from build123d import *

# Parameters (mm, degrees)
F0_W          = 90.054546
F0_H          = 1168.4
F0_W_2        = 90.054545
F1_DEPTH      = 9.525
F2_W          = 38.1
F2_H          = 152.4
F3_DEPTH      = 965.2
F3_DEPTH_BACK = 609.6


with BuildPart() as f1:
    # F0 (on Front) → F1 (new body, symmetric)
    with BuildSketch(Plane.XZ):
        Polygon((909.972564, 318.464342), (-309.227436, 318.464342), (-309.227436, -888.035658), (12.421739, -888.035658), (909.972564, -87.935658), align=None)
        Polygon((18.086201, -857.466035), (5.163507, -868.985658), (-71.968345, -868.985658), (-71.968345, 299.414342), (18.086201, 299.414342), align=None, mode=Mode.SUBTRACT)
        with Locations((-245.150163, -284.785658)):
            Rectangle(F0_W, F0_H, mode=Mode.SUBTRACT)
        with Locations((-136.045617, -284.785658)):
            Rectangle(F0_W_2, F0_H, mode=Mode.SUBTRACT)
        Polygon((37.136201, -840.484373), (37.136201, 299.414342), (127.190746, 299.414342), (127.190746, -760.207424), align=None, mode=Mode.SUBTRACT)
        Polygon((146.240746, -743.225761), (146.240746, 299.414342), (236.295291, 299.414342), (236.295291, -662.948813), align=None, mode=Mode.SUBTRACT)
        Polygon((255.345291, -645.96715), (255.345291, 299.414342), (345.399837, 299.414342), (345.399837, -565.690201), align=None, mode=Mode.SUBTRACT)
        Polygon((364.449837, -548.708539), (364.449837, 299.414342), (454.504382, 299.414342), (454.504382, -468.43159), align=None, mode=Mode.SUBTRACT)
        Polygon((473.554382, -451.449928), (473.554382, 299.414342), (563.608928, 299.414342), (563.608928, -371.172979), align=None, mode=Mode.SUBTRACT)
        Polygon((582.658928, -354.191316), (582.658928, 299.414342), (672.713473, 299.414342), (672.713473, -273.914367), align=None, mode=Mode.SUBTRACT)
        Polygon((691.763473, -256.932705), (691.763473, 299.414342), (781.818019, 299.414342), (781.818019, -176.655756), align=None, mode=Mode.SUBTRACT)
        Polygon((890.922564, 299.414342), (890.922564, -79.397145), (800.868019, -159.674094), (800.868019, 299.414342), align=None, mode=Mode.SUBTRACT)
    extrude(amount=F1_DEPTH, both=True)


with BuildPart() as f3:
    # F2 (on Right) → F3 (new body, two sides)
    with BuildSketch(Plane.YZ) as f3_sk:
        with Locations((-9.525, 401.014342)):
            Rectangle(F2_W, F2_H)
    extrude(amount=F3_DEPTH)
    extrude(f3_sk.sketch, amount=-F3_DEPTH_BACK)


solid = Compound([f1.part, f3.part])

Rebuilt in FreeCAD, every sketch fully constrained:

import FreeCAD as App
import Part
import Sketcher
from FreeCAD import Vector
Q = App.Units.Quantity

doc = App.newDocument("Part")
body = doc.addObject("PartDesign::Body", "Body")

sketch1 = body.newObject("Sketcher::SketchObject", "Sketch")
sketch1.AttachmentSupport = (doc.getObject("XZ_Plane"), [""])
sketch1.MapMode = "FlatFace"
sketch1.addGeometry(Part.LineSegment(Vector(910, 318, 0), Vector(-309, 318, 0)), False)
sketch1.addGeometry(Part.LineSegment(Vector(-309, 318, 0), Vector(-309, -888, 0)), False)
sketch1.addGeometry(Part.LineSegment(Vector(-309, -888, 0), Vector(12, -888, 0)), False)
sketch1.addGeometry(Part.LineSegment(Vector(12, -888, 0), Vector(910, -88, 0)), False)
sketch1.addGeometry(Part.LineSegment(Vector(910, -88, 0), Vector(910, 318, 0)), False)
sketch1.addGeometry(Part.LineSegment(Vector(-200, -869, 0), Vector(-290, -869, 0)), False)
sketch1.addGeometry(Part.LineSegment(Vector(-290, -869, 0), Vector(-290, 299, 0)), False)
sketch1.addGeometry(Part.LineSegment(Vector(-290, 299, 0), Vector(-200, 299, 0)), False)
sketch1.addGeometry(Part.LineSegment(Vector(-200, 299, 0), Vector(-200, -869, 0)), False)
sketch1.addGeometry(Part.LineSegment(Vector(-91, -869, 0), Vector(-181, -869, 0)), False)
sketch1.addGeometry(Part.LineSegment(Vector(-181, -869, 0), Vector(-181, 299, 0)), False)
sketch1.addGeometry(Part.LineSegment(Vector(-181, 299, 0), Vector(-91, 299, 0)), False)
sketch1.addGeometry(Part.LineSegment(Vector(-91, 299, 0), Vector(-91, -869, 0)), False)
sketch1.addGeometry(Part.LineSegment(Vector(18, 299, 0), Vector(18, -857, 0)), False)
sketch1.addGeometry(Part.LineSegment(Vector(18, -857, 0), Vector(5, -869, 0)), False)
sketch1.addGeometry(Part.LineSegment(Vector(5, -869, 0), Vector(-72, -869, 0)), False)
sketch1.addGeometry(Part.LineSegment(Vector(-72, -869, 0), Vector(-72, 299, 0)), False)
sketch1.addGeometry(Part.LineSegment(Vector(-72, 299, 0), Vector(18, 299, 0)), False)
sketch1.addGeometry(Part.LineSegment(Vector(127, -760, 0), Vector(37, -840, 0)), False)
sketch1.addGeometry(Part.LineSegment(Vector(37, -840, 0), Vector(37, 299, 0)), False)
sketch1.addGeometry(Part.LineSegment(Vector(37, 299, 0), Vector(127, 299, 0)), False)
sketch1.addGeometry(Part.LineSegment(Vector(127, 299, 0), Vector(127, -760, 0)), False)
sketch1.addGeometry(Part.LineSegment(Vector(236, -663, 0), Vector(146, -743, 0)), False)
sketch1.addGeometry(Part.LineSegment(Vector(146, -743, 0), Vector(146, 299, 0)), False)
sketch1.addGeometry(Part.LineSegment(Vector(146, 299, 0), Vector(236, 299, 0)), False)
sketch1.addGeometry(Part.LineSegment(Vector(236, 299, 0), Vector(236, -663, 0)), False)
sketch1.addGeometry(Part.LineSegment(Vector(345, -566, 0), Vector(255, -646, 0)), False)
sketch1.addGeometry(Part.LineSegment(Vector(255, -646, 0), Vector(255, 299, 0)), False)
sketch1.addGeometry(Part.LineSegment(Vector(255, 299, 0), Vector(345, 299, 0)), False)
sketch1.addGeometry(Part.LineSegment(Vector(345, 299, 0), Vector(345, -566, 0)), False)
sketch1.addGeometry(Part.LineSegment(Vector(455, -468, 0), Vector(364, -549, 0)), False)
sketch1.addGeometry(Part.LineSegment(Vector(364, -549, 0), Vector(364, 299, 0)), False)
sketch1.addGeometry(Part.LineSegment(Vector(364, 299, 0), Vector(455, 299, 0)), False)
sketch1.addGeometry(Part.LineSegment(Vector(455, 299, 0), Vector(455, -468, 0)), False)
sketch1.addGeometry(Part.LineSegment(Vector(564, -371, 0), Vector(474, -451, 0)), False)
sketch1.addGeometry(Part.LineSegment(Vector(474, -451, 0), Vector(474, 299, 0)), False)
sketch1.addGeometry(Part.LineSegment(Vector(474, 299, 0), Vector(564, 299, 0)), False)
sketch1.addGeometry(Part.LineSegment(Vector(564, 299, 0), Vector(564, -371, 0)), False)
sketch1.addGeometry(Part.LineSegment(Vector(673, -274, 0), Vector(583, -354, 0)), False)
sketch1.addGeometry(Part.LineSegment(Vector(583, -354, 0), Vector(583, 299, 0)), False)
sketch1.addGeometry(Part.LineSegment(Vector(583, 299, 0), Vector(673, 299, 0)), False)
sketch1.addGeometry(Part.LineSegment(Vector(673, 299, 0), Vector(673, -274, 0)), False)
sketch1.addGeometry(Part.LineSegment(Vector(782, -177, 0), Vector(692, -257, 0)), False)
sketch1.addGeometry(Part.LineSegment(Vector(692, -257, 0), Vector(692, 299, 0)), False)
sketch1.addGeometry(Part.LineSegment(Vector(692, 299, 0), Vector(782, 299, 0)), False)
sketch1.addGeometry(Part.LineSegment(Vector(782, 299, 0), Vector(782, -177, 0)), False)
sketch1.addGeometry(Part.LineSegment(Vector(801, 299, 0), Vector(891, 299, 0)), False)
sketch1.addGeometry(Part.LineSegment(Vector(891, 299, 0), Vector(891, -79, 0)), False)
sketch1.addGeometry(Part.LineSegment(Vector(891, -79, 0), Vector(801, -160, 0)), False)
sketch1.addGeometry(Part.LineSegment(Vector(801, -160, 0), Vector(801, 299, 0)), False)
sketch1.addConstraint(Sketcher.Constraint("Coincident", 0, 2, 1, 1))
sketch1.addConstraint(Sketcher.Constraint("Coincident", 1, 2, 2, 1))
sketch1.addConstraint(Sketcher.Constraint("Coincident", 2, 2, 3, 1))
sketch1.addConstraint(Sketcher.Constraint("Coincident", 3, 2, 4, 1))
sketch1.addConstraint(Sketcher.Constraint("Coincident", 4, 2, 0, 1))
sketch1.addConstraint(Sketcher.Constraint("Coincident", 5, 2, 6, 1))
sketch1.addConstraint(Sketcher.Constraint("Coincident", 6, 2, 7, 1))
sketch1.addConstraint(Sketcher.Constraint("Coincident", 7, 2, 8, 1))
sketch1.addConstraint(Sketcher.Constraint("Coincident", 8, 2, 5, 1))
sketch1.addConstraint(Sketcher.Constraint("Coincident", 9, 2, 10, 1))
sketch1.addConstraint(Sketcher.Constraint("Coincident", 10, 2, 11, 1))
sketch1.addConstraint(Sketcher.Constraint("Coincident", 11, 2, 12, 1))
sketch1.addConstraint(Sketcher.Constraint("Coincident", 12, 2, 9, 1))
sketch1.addConstraint(Sketcher.Constraint("Coincident", 13, 2, 14, 1))
sketch1.addConstraint(Sketcher.Constraint("Coincident", 14, 2, 15, 1))
sketch1.addConstraint(Sketcher.Constraint("Coincident", 15, 2, 16, 1))
sketch1.addConstraint(Sketcher.Constraint("Coincident", 16, 2, 17, 1))
sketch1.addConstraint(Sketcher.Constraint("Coincident", 17, 2, 13, 1))
sketch1.addConstraint(Sketcher.Constraint("Coincident", 18, 2, 19, 1))
sketch1.addConstraint(Sketcher.Constraint("Coincident", 19, 2, 20, 1))
sketch1.addConstraint(Sketcher.Constraint("Coincident", 20, 2, 21, 1))
sketch1.addConstraint(Sketcher.Constraint("Coincident", 21, 2, 18, 1))
sketch1.addConstraint(Sketcher.Constraint("Coincident", 22, 2, 23, 1))
sketch1.addConstraint(Sketcher.Constraint("Coincident", 23, 2, 24, 1))
sketch1.addConstraint(Sketcher.Constraint("Coincident", 24, 2, 25, 1))
sketch1.addConstraint(Sketcher.Constraint("Coincident", 25, 2, 22, 1))
sketch1.addConstraint(Sketcher.Constraint("Coincident", 26, 2, 27, 1))
sketch1.addConstraint(Sketcher.Constraint("Coincident", 27, 2, 28, 1))
sketch1.addConstraint(Sketcher.Constraint("Coincident", 28, 2, 29, 1))
sketch1.addConstraint(Sketcher.Constraint("Coincident", 29, 2, 26, 1))
sketch1.addConstraint(Sketcher.Constraint("Coincident", 30, 2, 31, 1))
sketch1.addConstraint(Sketcher.Constraint("Coincident", 31, 2, 32, 1))
sketch1.addConstraint(Sketcher.Constraint("Coincident", 32, 2, 33, 1))
sketch1.addConstraint(Sketcher.Constraint("Coincident", 33, 2, 30, 1))
sketch1.addConstraint(Sketcher.Constraint("Coincident", 34, 2, 35, 1))
sketch1.addConstraint(Sketcher.Constraint("Coincident", 35, 2, 36, 1))
sketch1.addConstraint(Sketcher.Constraint("Coincident", 36, 2, 37, 1))
sketch1.addConstraint(Sketcher.Constraint("Coincident", 37, 2, 34, 1))
sketch1.addConstraint(Sketcher.Constraint("Coincident", 38, 2, 39, 1))
sketch1.addConstraint(Sketcher.Constraint("Coincident", 39, 2, 40, 1))
sketch1.addConstraint(Sketcher.Constraint("Coincident", 40, 2, 41, 1))
sketch1.addConstraint(Sketcher.Constraint("Coincident", 41, 2, 38, 1))
sketch1.addConstraint(Sketcher.Constraint("Coincident", 42, 2, 43, 1))
sketch1.addConstraint(Sketcher.Constraint("Coincident", 43, 2, 44, 1))
sketch1.addConstraint(Sketcher.Constraint("Coincident", 44, 2, 45, 1))
sketch1.addConstraint(Sketcher.Constraint("Coincident", 45, 2, 42, 1))
sketch1.addConstraint(Sketcher.Constraint("Coincident", 46, 2, 47, 1))
sketch1.addConstraint(Sketcher.Constraint("Coincident", 47, 2, 48, 1))
sketch1.addConstraint(Sketcher.Constraint("Coincident", 48, 2, 49, 1))
sketch1.addConstraint(Sketcher.Constraint("Coincident", 49, 2, 46, 1))
sketch1.addConstraint(Sketcher.Constraint("Horizontal", 0))
sketch1.addConstraint(Sketcher.Constraint("Vertical", 1))
sketch1.addConstraint(Sketcher.Constraint("Horizontal", 2))
sketch1.addConstraint(Sketcher.Constraint("Vertical", 4))
sketch1.addConstraint(Sketcher.Constraint("Horizontal", 5))
sketch1.addConstraint(Sketcher.Constraint("Vertical", 6))
sketch1.addConstraint(Sketcher.Constraint("Horizontal", 7))
sketch1.addConstraint(Sketcher.Constraint("Vertical", 8))
sketch1.addConstraint(Sketcher.Constraint("Horizontal", 9))
sketch1.addConstraint(Sketcher.Constraint("Vertical", 10))
sketch1.addConstraint(Sketcher.Constraint("Horizontal", 11))
sketch1.addConstraint(Sketcher.Constraint("Vertical", 12))
sketch1.addConstraint(Sketcher.Constraint("Vertical", 13))
sketch1.addConstraint(Sketcher.Constraint("Horizontal", 15))
sketch1.addConstraint(Sketcher.Constraint("Vertical", 16))
sketch1.addConstraint(Sketcher.Constraint("Horizontal", 17))
sketch1.addConstraint(Sketcher.Constraint("Vertical", 19))
sketch1.addConstraint(Sketcher.Constraint("Horizontal", 20))
sketch1.addConstraint(Sketcher.Constraint("Vertical", 21))
sketch1.addConstraint(Sketcher.Constraint("Vertical", 23))
sketch1.addConstraint(Sketcher.Constraint("Horizontal", 24))
sketch1.addConstraint(Sketcher.Constraint("Vertical", 25))
sketch1.addConstraint(Sketcher.Constraint("Vertical", 27))
sketch1.addConstraint(Sketcher.Constraint("Horizontal", 28))
sketch1.addConstraint(Sketcher.Constraint("Vertical", 29))
sketch1.addConstraint(Sketcher.Constraint("Vertical", 31))
sketch1.addConstraint(Sketcher.Constraint("Horizontal", 32))
sketch1.addConstraint(Sketcher.Constraint("Vertical", 33))
sketch1.addConstraint(Sketcher.Constraint("Vertical", 35))
sketch1.addConstraint(Sketcher.Constraint("Horizontal", 36))
sketch1.addConstraint(Sketcher.Constraint("Vertical", 37))
sketch1.addConstraint(Sketcher.Constraint("Vertical", 39))
sketch1.addConstraint(Sketcher.Constraint("Horizontal", 40))
sketch1.addConstraint(Sketcher.Constraint("Vertical", 41))
sketch1.addConstraint(Sketcher.Constraint("Vertical", 43))
sketch1.addConstraint(Sketcher.Constraint("Horizontal", 44))
sketch1.addConstraint(Sketcher.Constraint("Vertical", 45))
sketch1.addConstraint(Sketcher.Constraint("Horizontal", 46))
sketch1.addConstraint(Sketcher.Constraint("Vertical", 47))
sketch1.addConstraint(Sketcher.Constraint("Vertical", 49))
sketch1.addConstraint(Sketcher.Constraint("Parallel", 3, 14))
sketch1.addConstraint(Sketcher.Constraint("Parallel", 14, 18))
sketch1.addConstraint(Sketcher.Constraint("Parallel", 18, 22))
sketch1.addConstraint(Sketcher.Constraint("Parallel", 22, 26))
sketch1.addConstraint(Sketcher.Constraint("Parallel", 26, 30))
sketch1.addConstraint(Sketcher.Constraint("Parallel", 30, 34))
sketch1.addConstraint(Sketcher.Constraint("Parallel", 34, 38))
sketch1.addConstraint(Sketcher.Constraint("Parallel", 38, 42))
sketch1.addConstraint(Sketcher.Constraint("Parallel", 42, 48))
sketch1.addConstraint(Sketcher.Constraint("Horizontal", 8, 2, 9, 2))
sketch1.addConstraint(Sketcher.Constraint("Horizontal", 7, 2, 10, 2))
sketch1.addConstraint(Sketcher.Constraint("Horizontal", 12, 2, 14, 2))
sketch1.addConstraint(Sketcher.Constraint("Horizontal", 11, 2, 16, 2))
sketch1.addConstraint(Sketcher.Constraint("Horizontal", 17, 2, 19, 2))
sketch1.addConstraint(Sketcher.Constraint("Horizontal", 20, 2, 23, 2))
sketch1.addConstraint(Sketcher.Constraint("Horizontal", 24, 2, 27, 2))
sketch1.addConstraint(Sketcher.Constraint("Horizontal", 28, 2, 31, 2))
sketch1.addConstraint(Sketcher.Constraint("Horizontal", 32, 2, 35, 2))
sketch1.addConstraint(Sketcher.Constraint("Horizontal", 36, 2, 39, 2))
sketch1.addConstraint(Sketcher.Constraint("Horizontal", 40, 2, 43, 2))
sketch1.addConstraint(Sketcher.Constraint("Horizontal", 44, 2, 46, 2))
sketch1.addConstraint(Sketcher.Constraint("Equal", 7, 9))
sketch1.addConstraint(Sketcher.Constraint("Equal", 11, 17))
sketch1.addConstraint(Sketcher.Constraint("Equal", 17, 20))
sketch1.addConstraint(Sketcher.Constraint("Equal", 20, 24))
sketch1.addConstraint(Sketcher.Constraint("Equal", 24, 28))
sketch1.addConstraint(Sketcher.Constraint("Equal", 28, 32))
sketch1.addConstraint(Sketcher.Constraint("Equal", 32, 36))
sketch1.addConstraint(Sketcher.Constraint("Equal", 36, 40))
sketch1.addConstraint(Sketcher.Constraint("Equal", 40, 44))
sketch1.addConstraint(Sketcher.Constraint("Equal", 44, 46))
sketch1.addConstraint(Sketcher.Constraint("DistanceX", 0, 2, 0, 1, Q("48 in")))
sketch1.addConstraint(Sketcher.Constraint("DistanceY", 4, 1, 4, 2, Q("16 in")))
sketch1.addConstraint(Sketcher.Constraint("DistanceY", 6, 1, 6, 2, Q("46 in")))
sketch1.addConstraint(Sketcher.Constraint("DistanceY", 1, 2, 1, 1, Q("47.5 in")))
sketch1.addConstraint(Sketcher.Constraint("DistanceX", 1, 2, 5, 2, Q("0.75 in")))
sketch1.addConstraint(Sketcher.Constraint("DistanceY", 1, 2, 5, 2, Q("0.75 in")))
sketch1.addConstraint(Sketcher.Constraint("DistanceX", 8, 2, 9, 2, Q("0.75 in")))
sketch1.addConstraint(Sketcher.Constraint("DistanceX", 12, 2, 15, 2, Q("0.75 in")))
sketch1.addConstraint(Sketcher.Constraint("DistanceX", 13, 2, 18, 2, Q("0.75 in")))
sketch1.addConstraint(Sketcher.Constraint("DistanceX", 21, 2, 22, 2, Q("0.75 in")))
sketch1.addConstraint(Sketcher.Constraint("DistanceX", 25, 2, 26, 2, Q("0.75 in")))
sketch1.addConstraint(Sketcher.Constraint("DistanceX", 29, 2, 30, 2, Q("0.75 in")))
sketch1.addConstraint(Sketcher.Constraint("DistanceX", 33, 2, 34, 2, Q("0.75 in")))
sketch1.addConstraint(Sketcher.Constraint("DistanceX", 37, 2, 38, 2, Q("0.75 in")))
sketch1.addConstraint(Sketcher.Constraint("DistanceX", 41, 2, 42, 2, Q("0.75 in")))
sketch1.addConstraint(Sketcher.Constraint("DistanceX", 46, 2, 4, 2, Q("0.75 in")))
sketch1.addConstraint(Sketcher.Constraint("DistanceX", 45, 2, 48, 2, Q("0.75 in")))
sketch1.addConstraint(Sketcher.Constraint("DistanceX", 15, 2, 15, 1, 77.131852))
sketch1.addConstraint(Sketcher.Constraint("DistanceY", 27, 1, 27, 2, 945.381492))
sketch1.addConstraint(Sketcher.Constraint("DistanceY", 31, 1, 31, 2, 848.122881))
sketch1.addConstraint(Sketcher.Constraint("DistanceY", 33, 2, 33, 1, 767.845932))
sketch1.addConstraint(Sketcher.Constraint("DistanceY", 35, 1, 35, 2, 750.86427))
sketch1.addConstraint(Sketcher.Constraint("DistanceY", 39, 1, 39, 2, 653.605658))
sketch1.addConstraint(Sketcher.Constraint("DistanceX", -1, 1, 13, 2, 18.086201))
sketch1.addConstraint(Sketcher.Constraint("DistanceY", 29, 2, -1, 1, 565.690201))
sketch1.addConstraint(Sketcher.Constraint("DistanceY", 19, 1, 19, 2, 1139.898715))
sketch1.addConstraint(Sketcher.Constraint("DistanceY", 23, 1, 23, 2, 1042.640103))
sketch1.addConstraint(Sketcher.Constraint("DistanceY", 43, 1, 43, 2, 556.347047))
sketch1.addConstraint(Sketcher.Constraint("DistanceY", 47, 2, 47, 1, 378.811487))
pad1 = body.newObject("PartDesign::Pad", "Pad")
pad1.Profile = sketch1
pad1.Length = Q("0.75 in")
pad1.Midplane = True
body2 = doc.addObject("PartDesign::Body", "Body001")

sketch2 = body2.newObject("Sketcher::SketchObject", "Sketch001")
sketch2.AttachmentSupport = (doc.getObject("YZ_Plane001"), [""])
sketch2.MapMode = "FlatFace"
sketch2.addGeometry(Part.LineSegment(Vector(-29, 477, 0), Vector(-29, 325, 0)), False)
sketch2.addGeometry(Part.LineSegment(Vector(-29, 325, 0), Vector(10, 325, 0)), False)
sketch2.addGeometry(Part.LineSegment(Vector(10, 325, 0), Vector(10, 477, 0)), False)
sketch2.addGeometry(Part.LineSegment(Vector(10, 477, 0), Vector(-29, 477, 0)), False)
sketch2.addConstraint(Sketcher.Constraint("Coincident", 0, 2, 1, 1))
sketch2.addConstraint(Sketcher.Constraint("Coincident", 1, 2, 2, 1))
sketch2.addConstraint(Sketcher.Constraint("Coincident", 2, 2, 3, 1))
sketch2.addConstraint(Sketcher.Constraint("Coincident", 3, 2, 0, 1))
sketch2.addConstraint(Sketcher.Constraint("Vertical", 0))
sketch2.addConstraint(Sketcher.Constraint("Horizontal", 1))
sketch2.addConstraint(Sketcher.Constraint("Vertical", 2))
sketch2.addConstraint(Sketcher.Constraint("Horizontal", 3))
sketch2.addConstraint(Sketcher.Constraint("DistanceY", 0, 2, 0, 1, Q("6 in")))
sketch2.addConstraint(Sketcher.Constraint("DistanceX", 1, 1, 1, 2, Q("1.5 in")))
sketch2.addConstraint(Sketcher.Constraint("DistanceX", 0, 2, -1, 1, Q("1.125 in")))
sketch2.addConstraint(Sketcher.Constraint("DistanceY", -1, 1, 0, 2, 324.814342))
pad2 = body2.newObject("PartDesign::Pad", "Pad001")
pad2.Profile = sketch2
pad2.Type = "TwoLengths"
pad2.Length = Q("38 in")
pad2.Length2 = Q("24 in")

doc.recompute()
